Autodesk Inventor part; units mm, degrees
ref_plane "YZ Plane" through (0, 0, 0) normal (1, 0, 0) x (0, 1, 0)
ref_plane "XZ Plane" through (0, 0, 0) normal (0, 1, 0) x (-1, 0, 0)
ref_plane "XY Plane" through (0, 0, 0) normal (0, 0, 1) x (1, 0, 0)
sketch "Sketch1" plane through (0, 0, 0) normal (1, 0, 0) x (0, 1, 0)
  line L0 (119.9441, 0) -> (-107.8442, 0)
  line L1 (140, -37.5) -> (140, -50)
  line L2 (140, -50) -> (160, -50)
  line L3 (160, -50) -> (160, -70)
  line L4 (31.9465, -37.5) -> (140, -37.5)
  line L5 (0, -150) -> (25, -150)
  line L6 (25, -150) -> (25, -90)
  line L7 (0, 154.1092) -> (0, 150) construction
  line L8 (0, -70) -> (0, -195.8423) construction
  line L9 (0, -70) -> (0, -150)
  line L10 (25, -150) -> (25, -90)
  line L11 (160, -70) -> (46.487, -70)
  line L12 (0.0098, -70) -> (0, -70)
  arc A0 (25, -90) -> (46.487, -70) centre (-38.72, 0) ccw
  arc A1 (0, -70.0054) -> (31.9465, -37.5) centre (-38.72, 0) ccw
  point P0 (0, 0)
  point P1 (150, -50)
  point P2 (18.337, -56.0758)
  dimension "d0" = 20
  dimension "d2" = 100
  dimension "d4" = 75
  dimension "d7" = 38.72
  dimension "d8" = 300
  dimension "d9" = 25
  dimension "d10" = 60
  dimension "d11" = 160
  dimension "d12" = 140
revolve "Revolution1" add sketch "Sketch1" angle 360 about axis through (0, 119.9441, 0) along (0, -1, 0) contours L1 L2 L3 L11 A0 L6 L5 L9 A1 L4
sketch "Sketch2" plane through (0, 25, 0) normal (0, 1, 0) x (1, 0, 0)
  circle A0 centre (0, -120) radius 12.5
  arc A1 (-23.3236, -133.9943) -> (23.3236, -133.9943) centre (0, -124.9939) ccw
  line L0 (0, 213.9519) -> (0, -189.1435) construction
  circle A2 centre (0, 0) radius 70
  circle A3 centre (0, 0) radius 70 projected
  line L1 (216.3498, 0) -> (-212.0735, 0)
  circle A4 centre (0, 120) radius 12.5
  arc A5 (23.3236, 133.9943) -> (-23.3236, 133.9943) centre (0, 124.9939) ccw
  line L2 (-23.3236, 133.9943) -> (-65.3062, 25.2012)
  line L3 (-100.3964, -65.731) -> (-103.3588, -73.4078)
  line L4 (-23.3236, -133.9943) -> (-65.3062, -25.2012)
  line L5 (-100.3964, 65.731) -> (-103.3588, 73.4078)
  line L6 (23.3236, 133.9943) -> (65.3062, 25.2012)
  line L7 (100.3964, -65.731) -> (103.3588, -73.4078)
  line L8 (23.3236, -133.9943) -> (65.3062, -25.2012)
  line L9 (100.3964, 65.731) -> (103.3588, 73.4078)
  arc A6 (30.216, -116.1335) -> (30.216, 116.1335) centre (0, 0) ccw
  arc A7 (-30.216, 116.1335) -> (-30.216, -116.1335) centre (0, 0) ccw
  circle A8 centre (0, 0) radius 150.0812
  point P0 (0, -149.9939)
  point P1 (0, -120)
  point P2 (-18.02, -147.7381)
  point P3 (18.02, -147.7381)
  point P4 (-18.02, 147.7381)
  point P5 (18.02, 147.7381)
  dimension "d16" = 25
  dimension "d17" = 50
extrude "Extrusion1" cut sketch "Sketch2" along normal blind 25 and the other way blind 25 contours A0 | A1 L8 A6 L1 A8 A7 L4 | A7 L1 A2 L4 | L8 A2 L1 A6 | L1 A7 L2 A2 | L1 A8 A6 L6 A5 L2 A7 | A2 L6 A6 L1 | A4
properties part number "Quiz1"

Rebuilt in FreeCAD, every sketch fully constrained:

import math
import FreeCAD as App
import Part
import Sketcher

V = App.Vector

doc = App.newDocument("Part")
body = doc.addObject("PartDesign::Body", "Body")

# Sketch on YZ plane
sketch1 = body.newObject("Sketcher::SketchObject", "Sketch")
sketch1.AttachmentSupport = (doc.getObject("YZ_Plane"), [""])
sketch1.MapMode = "FlatFace"
sketch1.addGeometry([
    Part.LineSegment(V(140, -50, 0), V(140, -37.5, 0)),  # 0
    Part.LineSegment(V(140, -37.5, 0), V(31.9465, -37.5, 0)),  # 1
    Part.ArcOfCircle(Part.Circle(V(-38.72, 0, 0), V(0, 0, 1), 79.999965), math.radians(-61.05301), math.radians(-27.953177)),  # 2
    Part.LineSegment(V(0, -70.0054, 0), V(0, -150, 0)),  # 3
    Part.LineSegment(V(0, -150, 0), V(25, -150, 0)),  # 4
    Part.LineSegment(V(25, -150, 0), V(25, -90, 0)),  # 5
    Part.ArcOfCircle(Part.Circle(V(-38.719106, -0.0011, 0), V(0, 0, 1), 110.272057), math.radians(-54.701555), math.radians(-39.403941)),  # 6
    Part.LineSegment(V(46.487, -70, 0), V(160, -70, 0)),  # 7
    Part.LineSegment(V(160, -70, 0), V(160, -50, 0)),  # 8
    Part.LineSegment(V(160, -50, 0), V(140, -50, 0)),  # 9
], False)
sketch1.addConstraint([
    Sketcher.Constraint("Coincident", 0, 2, 1, 1),
    Sketcher.Constraint("Coincident", 1, 2, 2, 2),
    Sketcher.Constraint("Coincident", 2, 1, 3, 1),
    Sketcher.Constraint("Coincident", 3, 2, 4, 1),
    Sketcher.Constraint("Coincident", 4, 2, 5, 1),
    Sketcher.Constraint("Coincident", 5, 2, 6, 1),
    Sketcher.Constraint("Coincident", 6, 2, 7, 1),
    Sketcher.Constraint("Coincident", 7, 2, 8, 1),
    Sketcher.Constraint("Coincident", 8, 2, 9, 1),
    Sketcher.Constraint("Coincident", 9, 2, 0, 1),
    Sketcher.Constraint("Vertical", 0),
    Sketcher.Constraint("Horizontal", 1),
    Sketcher.Constraint("Vertical", 3),
    Sketcher.Constraint("Horizontal", 4),
    Sketcher.Constraint("Vertical", 5),
    Sketcher.Constraint("Horizontal", 7),
    Sketcher.Constraint("Vertical", 8),
    Sketcher.Constraint("Horizontal", 9),
    Sketcher.Constraint("PointOnObject", 2, 3, -1),
    Sketcher.Constraint("PointOnObject", 2, 1, -2),
    Sketcher.Constraint("Equal", 9, 8),
    Sketcher.Constraint("Radius", 2, 80.0),
    Sketcher.Constraint("DistanceX", 4, 1, 4, 2, 25.0),
    Sketcher.Constraint("DistanceX", 9, 2, 9, 1, 20.0),
    Sketcher.Constraint("DistanceY", 5, 1, 5, 2, 60.0),
    Sketcher.Constraint("DistanceX", -1, 1, 0, 2, 140.0),
    Sketcher.Constraint("DistanceY", 5, 2, 6, 2, 20.0),
    Sketcher.Constraint("DistanceX", 2, 3, -1, 1, 38.72),
    Sketcher.Constraint("DistanceY", 0, 1, 0, 2, 12.5),
    Sketcher.Constraint("DistanceY", 3, 2, -1, 1, 150.0),
    Sketcher.Constraint("Radius", 6, 110.272),
    Sketcher.Constraint("DistanceX", 7, 1, 7, 2, 113.513),
])
revolution = body.newObject("PartDesign::Revolution", "Revolution")
revolution.Profile = sketch1
revolution.ReferenceAxis = (sketch1, ["H_Axis"])
revolution.Angle = 360

# Sketch on XZ plane
sketch2 = body.newObject("Sketcher::SketchObject", "Sketch001")
sketch2.AttachmentSupport = (doc.getObject("XZ_Plane"), [""])
sketch2.MapMode = "FlatFace"
sketch2.AttachmentOffset = App.Placement(V(0, 0, -25), App.Rotation())
sketch2.addGeometry([
    Part.Circle(V(0, 120, 0), V(0, 0, 1), 12.5),  # 0
    Part.Circle(V(0, 0, 0), V(0, 0, 1), 150.0812),  # 1
    Part.ArcOfCircle(Part.Circle(V(0, 124.9939, 0), V(0, 0, 1), 24.99995), math.radians(21.101223), math.radians(158.898777)),  # 2
    Part.LineSegment(V(-23.3236, 133.9943, 0), V(-65.3062, 25.2012, 0)),  # 3
    Part.ArcOfCircle(Part.Circle(V(0, 0, 0), V(0, 0, 1), 70), math.radians(158.898752), math.radians(201.101248)),  # 4
    Part.LineSegment(V(-65.3062, -25.2012, 0), V(-23.3236, -133.9943, 0)),  # 5
    Part.ArcOfCircle(Part.Circle(V(0, -124.9939, 0), V(0, 0, 1), 24.99995), math.radians(-158.898777), math.radians(-21.101223)),  # 6
    Part.LineSegment(V(23.3236, -133.9943, 0), V(65.3062, -25.2012, 0)),  # 7
    Part.ArcOfCircle(Part.Circle(V(0, 0, 0), V(0, 0, 1), 70), math.radians(-21.101248), math.radians(21.101248)),  # 8
    Part.LineSegment(V(65.3062, 25.2012, 0), V(23.3236, 133.9943, 0)),  # 9
    Part.Circle(V(0, -120, 0), V(0, 0, 1), 12.5),  # 10
], False)
sketch2.addConstraint([
    Sketcher.Constraint("Tangent", 2, 2, 3, 1),
    Sketcher.Constraint("Tangent", 3, 2, 4, 1),
    Sketcher.Constraint("Tangent", 4, 2, 5, 1),
    Sketcher.Constraint("Tangent", 5, 2, 6, 1),
    Sketcher.Constraint("Tangent", 6, 2, 7, 1),
    Sketcher.Constraint("Tangent", 7, 2, 8, 1),
    Sketcher.Constraint("Tangent", 8, 2, 9, 1),
    Sketcher.Constraint("Tangent", 9, 2, 2, 1),
    Sketcher.Constraint("Coincident", 1, 3, -1, 1),
    Sketcher.Constraint("Coincident", 4, 3, -1, 1),
    Sketcher.Constraint("Coincident", 8, 3, -1, 1),
    Sketcher.Constraint("Equal", 2, 6),
    Sketcher.Constraint("Equal", 4, 8),
    Sketcher.Constraint("Equal", 0, 10),
    Sketcher.Constraint("Symmetric", 2, 3, 6, 3, -1, 1),
    Sketcher.Constraint("Symmetric", 0, 3, 10, 3, -1, 1),
    Sketcher.Constraint("PointOnObject", 0, 3, -2),
    Sketcher.Constraint("PointOnObject", 2, 3, -2),
    Sketcher.Constraint("Diameter", 0, 25.0),
    Sketcher.Constraint("Radius", 2, 25.0),
    Sketcher.Constraint("Radius", 4, 70.0),
    Sketcher.Constraint("DistanceY", -1, 1, 0, 3, 120.0),
    Sketcher.Constraint("Diameter", 1, 300.1624),
    Sketcher.Constraint("DistanceY", -1, 1, 2, 3, 124.994),
])
pocket1 = body.newObject("PartDesign::Pocket", "Pocket")
pocket1.Profile = sketch2
pocket1.Type = "ThroughAll"
pocket1.Midplane = True

doc.recompute()
